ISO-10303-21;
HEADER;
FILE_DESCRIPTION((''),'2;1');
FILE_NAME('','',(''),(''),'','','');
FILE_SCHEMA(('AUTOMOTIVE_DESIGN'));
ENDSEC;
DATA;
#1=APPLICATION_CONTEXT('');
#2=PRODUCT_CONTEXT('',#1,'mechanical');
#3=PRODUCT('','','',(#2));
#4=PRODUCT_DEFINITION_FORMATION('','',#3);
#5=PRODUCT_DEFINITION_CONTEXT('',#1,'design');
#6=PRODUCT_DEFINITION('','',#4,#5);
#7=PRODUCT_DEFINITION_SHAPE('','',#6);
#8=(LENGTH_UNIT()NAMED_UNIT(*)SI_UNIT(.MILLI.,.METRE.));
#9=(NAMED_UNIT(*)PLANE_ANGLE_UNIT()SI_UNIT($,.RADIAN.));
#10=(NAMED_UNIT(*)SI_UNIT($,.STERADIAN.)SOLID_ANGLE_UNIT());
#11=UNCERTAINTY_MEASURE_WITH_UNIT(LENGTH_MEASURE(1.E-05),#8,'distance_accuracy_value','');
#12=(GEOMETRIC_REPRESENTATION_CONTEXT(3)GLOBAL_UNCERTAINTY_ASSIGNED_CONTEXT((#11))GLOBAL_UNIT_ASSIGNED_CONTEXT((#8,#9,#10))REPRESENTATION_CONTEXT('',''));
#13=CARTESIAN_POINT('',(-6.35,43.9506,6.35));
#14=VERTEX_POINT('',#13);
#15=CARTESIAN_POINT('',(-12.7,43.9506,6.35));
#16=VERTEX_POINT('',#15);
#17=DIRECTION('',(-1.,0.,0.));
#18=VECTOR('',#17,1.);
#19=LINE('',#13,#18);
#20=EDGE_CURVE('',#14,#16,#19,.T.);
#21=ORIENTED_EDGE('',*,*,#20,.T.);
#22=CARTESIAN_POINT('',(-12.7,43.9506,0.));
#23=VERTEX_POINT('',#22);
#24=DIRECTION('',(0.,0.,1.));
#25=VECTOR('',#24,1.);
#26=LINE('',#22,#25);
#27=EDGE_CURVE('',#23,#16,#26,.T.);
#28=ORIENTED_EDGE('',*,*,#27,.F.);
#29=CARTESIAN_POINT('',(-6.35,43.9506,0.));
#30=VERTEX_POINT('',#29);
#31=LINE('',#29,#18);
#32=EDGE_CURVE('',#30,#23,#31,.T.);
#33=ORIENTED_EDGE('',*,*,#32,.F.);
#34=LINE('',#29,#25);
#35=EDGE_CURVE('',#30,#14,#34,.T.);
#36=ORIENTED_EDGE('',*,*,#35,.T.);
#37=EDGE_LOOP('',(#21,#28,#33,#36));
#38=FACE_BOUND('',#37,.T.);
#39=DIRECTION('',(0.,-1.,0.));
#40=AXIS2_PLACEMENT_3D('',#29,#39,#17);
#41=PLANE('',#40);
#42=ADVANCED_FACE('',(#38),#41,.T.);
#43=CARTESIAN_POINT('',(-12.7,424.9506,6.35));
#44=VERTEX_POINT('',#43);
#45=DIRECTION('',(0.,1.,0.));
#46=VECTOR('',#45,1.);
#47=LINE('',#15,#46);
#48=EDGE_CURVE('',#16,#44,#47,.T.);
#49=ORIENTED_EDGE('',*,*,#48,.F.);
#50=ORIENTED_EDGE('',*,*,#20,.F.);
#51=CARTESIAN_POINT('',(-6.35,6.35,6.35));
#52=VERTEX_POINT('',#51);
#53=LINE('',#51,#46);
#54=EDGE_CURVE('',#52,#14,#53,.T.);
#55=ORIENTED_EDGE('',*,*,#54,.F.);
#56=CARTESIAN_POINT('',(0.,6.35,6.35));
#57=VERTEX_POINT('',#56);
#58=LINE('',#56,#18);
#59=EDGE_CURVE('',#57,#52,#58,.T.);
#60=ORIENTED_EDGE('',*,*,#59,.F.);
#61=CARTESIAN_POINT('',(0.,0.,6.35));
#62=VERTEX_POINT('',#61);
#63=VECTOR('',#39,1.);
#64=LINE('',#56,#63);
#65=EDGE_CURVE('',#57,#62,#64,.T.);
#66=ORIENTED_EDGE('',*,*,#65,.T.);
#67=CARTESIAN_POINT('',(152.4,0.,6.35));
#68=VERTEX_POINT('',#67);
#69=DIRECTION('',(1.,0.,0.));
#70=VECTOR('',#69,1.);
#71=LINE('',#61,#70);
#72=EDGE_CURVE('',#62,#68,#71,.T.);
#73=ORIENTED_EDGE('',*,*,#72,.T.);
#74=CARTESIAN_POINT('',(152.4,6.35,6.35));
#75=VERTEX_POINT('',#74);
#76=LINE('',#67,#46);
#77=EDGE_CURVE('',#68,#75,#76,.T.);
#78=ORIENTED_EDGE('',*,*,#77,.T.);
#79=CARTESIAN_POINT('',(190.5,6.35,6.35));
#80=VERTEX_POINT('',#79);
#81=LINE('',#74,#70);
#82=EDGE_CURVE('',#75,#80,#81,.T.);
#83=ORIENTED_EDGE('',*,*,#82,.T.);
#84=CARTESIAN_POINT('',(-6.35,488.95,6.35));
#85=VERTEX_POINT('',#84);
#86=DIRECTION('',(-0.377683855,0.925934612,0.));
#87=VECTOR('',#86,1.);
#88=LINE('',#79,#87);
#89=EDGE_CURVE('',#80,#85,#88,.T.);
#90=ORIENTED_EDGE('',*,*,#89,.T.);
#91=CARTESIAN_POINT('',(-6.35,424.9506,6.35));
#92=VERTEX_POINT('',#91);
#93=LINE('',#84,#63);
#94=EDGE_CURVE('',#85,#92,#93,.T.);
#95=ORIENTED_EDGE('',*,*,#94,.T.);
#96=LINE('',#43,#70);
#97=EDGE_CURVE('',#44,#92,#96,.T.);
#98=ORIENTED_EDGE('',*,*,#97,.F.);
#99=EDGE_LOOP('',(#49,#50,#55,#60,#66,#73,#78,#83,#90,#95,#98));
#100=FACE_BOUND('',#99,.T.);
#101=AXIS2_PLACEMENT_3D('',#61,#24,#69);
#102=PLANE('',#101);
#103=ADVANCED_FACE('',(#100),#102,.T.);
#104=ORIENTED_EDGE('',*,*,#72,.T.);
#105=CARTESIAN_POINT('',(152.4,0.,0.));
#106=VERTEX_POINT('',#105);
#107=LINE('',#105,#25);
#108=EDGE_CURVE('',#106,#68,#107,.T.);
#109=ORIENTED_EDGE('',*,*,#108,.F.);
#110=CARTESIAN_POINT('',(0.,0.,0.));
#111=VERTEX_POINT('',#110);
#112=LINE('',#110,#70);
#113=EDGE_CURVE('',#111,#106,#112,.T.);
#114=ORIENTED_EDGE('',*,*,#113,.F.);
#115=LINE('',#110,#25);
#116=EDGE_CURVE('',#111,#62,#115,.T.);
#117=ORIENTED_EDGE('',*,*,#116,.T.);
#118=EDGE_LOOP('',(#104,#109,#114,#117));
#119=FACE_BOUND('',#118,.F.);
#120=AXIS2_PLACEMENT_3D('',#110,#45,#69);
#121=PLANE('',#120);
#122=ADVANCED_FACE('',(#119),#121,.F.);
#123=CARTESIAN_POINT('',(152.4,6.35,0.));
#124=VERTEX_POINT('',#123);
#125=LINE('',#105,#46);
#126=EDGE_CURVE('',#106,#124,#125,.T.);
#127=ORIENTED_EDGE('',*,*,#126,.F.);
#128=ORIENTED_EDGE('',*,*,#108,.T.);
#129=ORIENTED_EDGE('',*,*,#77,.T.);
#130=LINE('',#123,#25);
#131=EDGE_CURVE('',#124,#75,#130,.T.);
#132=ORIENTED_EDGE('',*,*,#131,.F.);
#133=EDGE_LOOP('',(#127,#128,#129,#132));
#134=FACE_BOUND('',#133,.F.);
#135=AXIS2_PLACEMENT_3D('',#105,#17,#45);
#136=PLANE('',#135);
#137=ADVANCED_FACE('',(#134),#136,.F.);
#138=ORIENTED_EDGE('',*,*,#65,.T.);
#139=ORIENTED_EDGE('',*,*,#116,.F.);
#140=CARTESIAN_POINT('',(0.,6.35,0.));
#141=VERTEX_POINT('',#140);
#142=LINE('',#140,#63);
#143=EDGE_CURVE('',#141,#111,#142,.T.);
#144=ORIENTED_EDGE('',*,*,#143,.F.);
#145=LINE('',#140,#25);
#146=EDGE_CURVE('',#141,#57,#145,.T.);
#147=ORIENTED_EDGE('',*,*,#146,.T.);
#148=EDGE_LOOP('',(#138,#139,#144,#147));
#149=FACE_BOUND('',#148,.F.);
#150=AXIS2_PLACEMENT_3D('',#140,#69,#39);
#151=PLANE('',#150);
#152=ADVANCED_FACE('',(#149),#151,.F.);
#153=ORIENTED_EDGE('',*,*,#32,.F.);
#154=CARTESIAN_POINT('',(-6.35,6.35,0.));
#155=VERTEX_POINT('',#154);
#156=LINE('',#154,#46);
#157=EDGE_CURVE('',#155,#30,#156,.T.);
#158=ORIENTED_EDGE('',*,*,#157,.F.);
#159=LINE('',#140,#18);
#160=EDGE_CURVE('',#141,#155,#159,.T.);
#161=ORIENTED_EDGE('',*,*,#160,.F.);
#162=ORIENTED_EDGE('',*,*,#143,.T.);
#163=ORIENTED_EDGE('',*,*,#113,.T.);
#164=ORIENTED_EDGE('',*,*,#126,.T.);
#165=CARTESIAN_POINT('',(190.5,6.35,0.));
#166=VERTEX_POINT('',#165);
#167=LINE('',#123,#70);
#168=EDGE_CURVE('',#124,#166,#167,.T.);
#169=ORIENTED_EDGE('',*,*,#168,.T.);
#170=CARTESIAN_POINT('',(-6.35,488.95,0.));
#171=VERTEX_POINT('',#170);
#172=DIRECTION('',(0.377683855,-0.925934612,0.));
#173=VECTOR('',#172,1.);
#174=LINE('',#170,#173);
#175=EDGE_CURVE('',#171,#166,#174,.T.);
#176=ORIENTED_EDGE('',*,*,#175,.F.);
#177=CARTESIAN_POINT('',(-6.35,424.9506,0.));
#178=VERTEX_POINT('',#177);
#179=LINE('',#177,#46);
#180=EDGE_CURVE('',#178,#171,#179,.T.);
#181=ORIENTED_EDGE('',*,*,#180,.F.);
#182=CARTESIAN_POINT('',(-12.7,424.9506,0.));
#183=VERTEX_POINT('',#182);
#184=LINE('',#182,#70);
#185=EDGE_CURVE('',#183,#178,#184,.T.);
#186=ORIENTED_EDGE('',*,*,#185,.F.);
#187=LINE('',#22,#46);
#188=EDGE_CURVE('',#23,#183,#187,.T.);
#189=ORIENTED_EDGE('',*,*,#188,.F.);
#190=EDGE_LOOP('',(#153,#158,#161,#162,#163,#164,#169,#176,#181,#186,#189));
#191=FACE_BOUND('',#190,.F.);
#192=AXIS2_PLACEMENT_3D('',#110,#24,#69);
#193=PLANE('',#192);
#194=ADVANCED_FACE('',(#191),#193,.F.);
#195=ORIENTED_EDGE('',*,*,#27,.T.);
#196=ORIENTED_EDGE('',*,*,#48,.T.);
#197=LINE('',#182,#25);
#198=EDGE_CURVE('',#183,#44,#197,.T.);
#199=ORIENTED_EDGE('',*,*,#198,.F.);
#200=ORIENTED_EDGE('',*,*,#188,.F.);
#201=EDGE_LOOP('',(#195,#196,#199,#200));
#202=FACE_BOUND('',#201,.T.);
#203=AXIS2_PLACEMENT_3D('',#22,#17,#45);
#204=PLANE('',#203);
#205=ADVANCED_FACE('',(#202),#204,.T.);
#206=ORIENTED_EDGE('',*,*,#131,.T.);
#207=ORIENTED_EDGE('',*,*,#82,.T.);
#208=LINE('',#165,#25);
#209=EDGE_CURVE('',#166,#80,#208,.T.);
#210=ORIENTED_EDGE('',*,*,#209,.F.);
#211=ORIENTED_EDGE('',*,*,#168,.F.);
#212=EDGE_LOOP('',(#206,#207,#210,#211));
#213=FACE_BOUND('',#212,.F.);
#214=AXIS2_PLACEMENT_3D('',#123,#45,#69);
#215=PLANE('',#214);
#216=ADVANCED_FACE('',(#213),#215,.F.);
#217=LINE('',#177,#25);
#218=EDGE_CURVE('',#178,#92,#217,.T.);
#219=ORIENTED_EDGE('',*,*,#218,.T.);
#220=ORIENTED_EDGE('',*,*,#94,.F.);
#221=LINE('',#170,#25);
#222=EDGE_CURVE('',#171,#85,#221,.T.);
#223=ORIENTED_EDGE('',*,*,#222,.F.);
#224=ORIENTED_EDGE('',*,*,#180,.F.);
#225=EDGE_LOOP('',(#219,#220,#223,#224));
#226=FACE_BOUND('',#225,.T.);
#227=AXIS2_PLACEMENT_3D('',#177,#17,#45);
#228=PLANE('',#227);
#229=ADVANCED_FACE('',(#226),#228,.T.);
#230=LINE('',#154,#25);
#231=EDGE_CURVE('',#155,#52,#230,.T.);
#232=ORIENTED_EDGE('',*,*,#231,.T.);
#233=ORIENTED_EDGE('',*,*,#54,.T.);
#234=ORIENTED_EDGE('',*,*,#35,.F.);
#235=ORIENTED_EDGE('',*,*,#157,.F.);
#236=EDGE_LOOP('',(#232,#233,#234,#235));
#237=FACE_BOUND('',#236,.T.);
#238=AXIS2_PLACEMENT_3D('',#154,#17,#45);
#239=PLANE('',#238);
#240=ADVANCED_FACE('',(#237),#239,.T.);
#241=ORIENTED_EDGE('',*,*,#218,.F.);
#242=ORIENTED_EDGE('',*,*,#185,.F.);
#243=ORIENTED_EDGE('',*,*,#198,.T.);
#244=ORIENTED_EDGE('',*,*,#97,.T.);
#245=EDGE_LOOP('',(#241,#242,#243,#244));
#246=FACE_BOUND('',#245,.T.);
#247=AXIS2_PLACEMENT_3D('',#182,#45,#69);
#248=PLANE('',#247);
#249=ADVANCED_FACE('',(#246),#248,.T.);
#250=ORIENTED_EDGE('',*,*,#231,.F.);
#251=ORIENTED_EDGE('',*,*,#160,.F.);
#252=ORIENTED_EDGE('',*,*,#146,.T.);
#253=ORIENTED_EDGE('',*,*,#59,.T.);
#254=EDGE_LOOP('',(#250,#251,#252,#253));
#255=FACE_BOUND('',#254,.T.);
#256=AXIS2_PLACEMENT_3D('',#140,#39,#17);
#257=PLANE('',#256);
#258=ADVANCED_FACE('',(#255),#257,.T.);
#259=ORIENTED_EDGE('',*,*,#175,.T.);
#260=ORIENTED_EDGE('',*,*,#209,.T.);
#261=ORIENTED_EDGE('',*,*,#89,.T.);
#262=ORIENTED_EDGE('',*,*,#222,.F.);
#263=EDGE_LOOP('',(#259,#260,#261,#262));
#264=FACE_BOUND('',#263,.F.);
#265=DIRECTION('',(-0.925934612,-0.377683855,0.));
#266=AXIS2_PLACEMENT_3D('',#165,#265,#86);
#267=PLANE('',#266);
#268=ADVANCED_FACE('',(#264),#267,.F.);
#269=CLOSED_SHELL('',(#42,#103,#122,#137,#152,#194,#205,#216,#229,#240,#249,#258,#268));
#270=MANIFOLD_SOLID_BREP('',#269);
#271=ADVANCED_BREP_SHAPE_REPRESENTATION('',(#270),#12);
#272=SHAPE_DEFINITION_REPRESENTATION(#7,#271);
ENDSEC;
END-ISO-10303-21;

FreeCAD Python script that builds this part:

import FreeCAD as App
import Part
import Sketcher

V = App.Vector
Q = App.Units.Quantity


def add_polygon(sketch, points):
    """Adds a closed chain of lines whose ends are joined by coincident constraints."""
    first, n = sketch.GeometryCount, len(points)
    for a, b in zip(points, points[1:] + points[:1]):
        sketch.addGeometry(Part.LineSegment(App.Vector(*a, 0), App.Vector(*b, 0)), False)
    for i in range(n):
        sketch.addConstraint(Sketcher.Constraint("Coincident", first + i, 2, first + (i + 1) % n, 1))

doc = App.newDocument("Part")
params = doc.addObject("Spreadsheet::Sheet", "Params")
for row, (alias, value) in enumerate([
    ("sketch1_width", "6 in"),
    ("sketch1_height", "15 in"),
    ("sketch1_width2", "1.5 in"),
    ("sketch1_width3", "0.25 in"),
    ("pad1_length", "0.25 in"),
], start=1):
    params.set(f"A{row}", alias)
    params.set(f"B{row}", "=" + value)
    params.setAlias(f"B{row}", alias)

body = doc.addObject("PartDesign::Body", "Body")

sketch1 = doc.addObject("Sketcher::SketchObject", "Sketch")
body.addObject(sketch1)
sketch1.AttachmentSupport = (doc.XY_Plane, [""])
sketch1.MapMode = "FlatFace"
add_polygon(sketch1, [(0, 6), (0, 0), (152, 0), (152, 6), (190, 6), (-6, 489), (-6, 425), (-13, 425), (-13, 44), (-6, 44), (-6, 6)])
sketch1.addConstraint(Sketcher.Constraint("Vertical", 0))
sketch1.addConstraint(Sketcher.Constraint("Horizontal", 1))
sketch1.addConstraint(Sketcher.Constraint("Vertical", 2))
sketch1.addConstraint(Sketcher.Constraint("Horizontal", 3))
sketch1.addConstraint(Sketcher.Constraint("Vertical", 5))
sketch1.addConstraint(Sketcher.Constraint("Horizontal", 6))
sketch1.addConstraint(Sketcher.Constraint("Vertical", 7))
sketch1.addConstraint(Sketcher.Constraint("Horizontal", 8))
sketch1.addConstraint(Sketcher.Constraint("Vertical", 9))
sketch1.addConstraint(Sketcher.Constraint("Horizontal", 10))
sketch1.addConstraint(Sketcher.Constraint("Coincident", 0, 2, -1, 1))
sketch1.addConstraint(Sketcher.Constraint("Horizontal", 3, 2, 9, 2))
sketch1.addConstraint(Sketcher.Constraint("Vertical", 5, 2, 8, 2))
sketch1.addConstraint(Sketcher.Constraint("Equal", 8, 10))
sketch1.addConstraint(Sketcher.Constraint("Equal", 10, 0))
sketch1.addConstraint(Sketcher.Constraint("DistanceX", 1, 1, 1, 2, Q("6 in")))
sketch1.addConstraint(Sketcher.Constraint("DistanceY", 7, 2, 7, 1, Q("15 in")))
sketch1.addConstraint(Sketcher.Constraint("DistanceX", 3, 1, 3, 2, Q("1.5 in")))
sketch1.addConstraint(Sketcher.Constraint("DistanceY", 2, 2, 4, 2, Q("19 in")))
sketch1.addConstraint(Sketcher.Constraint("DistanceX", 6, 2, 6, 1, Q("0.25 in")))
sketch1.addConstraint(Sketcher.Constraint("DistanceY", 9, 2, 9, 1, 37.6006))
sketch1.setExpression("Constraints[26]", "Params.sketch1_width")
sketch1.setExpression("Constraints[27]", "Params.sketch1_height")
sketch1.setExpression("Constraints[28]", "Params.sketch1_width2")
sketch1.setExpression("Constraints[30]", "Params.sketch1_width3")
pad1 = doc.addObject("PartDesign::Pad", "Pad")
body.addObject(pad1)
pad1.Profile = sketch1
pad1.setExpression("Length", "Params.pad1_length")

doc.recompute()
